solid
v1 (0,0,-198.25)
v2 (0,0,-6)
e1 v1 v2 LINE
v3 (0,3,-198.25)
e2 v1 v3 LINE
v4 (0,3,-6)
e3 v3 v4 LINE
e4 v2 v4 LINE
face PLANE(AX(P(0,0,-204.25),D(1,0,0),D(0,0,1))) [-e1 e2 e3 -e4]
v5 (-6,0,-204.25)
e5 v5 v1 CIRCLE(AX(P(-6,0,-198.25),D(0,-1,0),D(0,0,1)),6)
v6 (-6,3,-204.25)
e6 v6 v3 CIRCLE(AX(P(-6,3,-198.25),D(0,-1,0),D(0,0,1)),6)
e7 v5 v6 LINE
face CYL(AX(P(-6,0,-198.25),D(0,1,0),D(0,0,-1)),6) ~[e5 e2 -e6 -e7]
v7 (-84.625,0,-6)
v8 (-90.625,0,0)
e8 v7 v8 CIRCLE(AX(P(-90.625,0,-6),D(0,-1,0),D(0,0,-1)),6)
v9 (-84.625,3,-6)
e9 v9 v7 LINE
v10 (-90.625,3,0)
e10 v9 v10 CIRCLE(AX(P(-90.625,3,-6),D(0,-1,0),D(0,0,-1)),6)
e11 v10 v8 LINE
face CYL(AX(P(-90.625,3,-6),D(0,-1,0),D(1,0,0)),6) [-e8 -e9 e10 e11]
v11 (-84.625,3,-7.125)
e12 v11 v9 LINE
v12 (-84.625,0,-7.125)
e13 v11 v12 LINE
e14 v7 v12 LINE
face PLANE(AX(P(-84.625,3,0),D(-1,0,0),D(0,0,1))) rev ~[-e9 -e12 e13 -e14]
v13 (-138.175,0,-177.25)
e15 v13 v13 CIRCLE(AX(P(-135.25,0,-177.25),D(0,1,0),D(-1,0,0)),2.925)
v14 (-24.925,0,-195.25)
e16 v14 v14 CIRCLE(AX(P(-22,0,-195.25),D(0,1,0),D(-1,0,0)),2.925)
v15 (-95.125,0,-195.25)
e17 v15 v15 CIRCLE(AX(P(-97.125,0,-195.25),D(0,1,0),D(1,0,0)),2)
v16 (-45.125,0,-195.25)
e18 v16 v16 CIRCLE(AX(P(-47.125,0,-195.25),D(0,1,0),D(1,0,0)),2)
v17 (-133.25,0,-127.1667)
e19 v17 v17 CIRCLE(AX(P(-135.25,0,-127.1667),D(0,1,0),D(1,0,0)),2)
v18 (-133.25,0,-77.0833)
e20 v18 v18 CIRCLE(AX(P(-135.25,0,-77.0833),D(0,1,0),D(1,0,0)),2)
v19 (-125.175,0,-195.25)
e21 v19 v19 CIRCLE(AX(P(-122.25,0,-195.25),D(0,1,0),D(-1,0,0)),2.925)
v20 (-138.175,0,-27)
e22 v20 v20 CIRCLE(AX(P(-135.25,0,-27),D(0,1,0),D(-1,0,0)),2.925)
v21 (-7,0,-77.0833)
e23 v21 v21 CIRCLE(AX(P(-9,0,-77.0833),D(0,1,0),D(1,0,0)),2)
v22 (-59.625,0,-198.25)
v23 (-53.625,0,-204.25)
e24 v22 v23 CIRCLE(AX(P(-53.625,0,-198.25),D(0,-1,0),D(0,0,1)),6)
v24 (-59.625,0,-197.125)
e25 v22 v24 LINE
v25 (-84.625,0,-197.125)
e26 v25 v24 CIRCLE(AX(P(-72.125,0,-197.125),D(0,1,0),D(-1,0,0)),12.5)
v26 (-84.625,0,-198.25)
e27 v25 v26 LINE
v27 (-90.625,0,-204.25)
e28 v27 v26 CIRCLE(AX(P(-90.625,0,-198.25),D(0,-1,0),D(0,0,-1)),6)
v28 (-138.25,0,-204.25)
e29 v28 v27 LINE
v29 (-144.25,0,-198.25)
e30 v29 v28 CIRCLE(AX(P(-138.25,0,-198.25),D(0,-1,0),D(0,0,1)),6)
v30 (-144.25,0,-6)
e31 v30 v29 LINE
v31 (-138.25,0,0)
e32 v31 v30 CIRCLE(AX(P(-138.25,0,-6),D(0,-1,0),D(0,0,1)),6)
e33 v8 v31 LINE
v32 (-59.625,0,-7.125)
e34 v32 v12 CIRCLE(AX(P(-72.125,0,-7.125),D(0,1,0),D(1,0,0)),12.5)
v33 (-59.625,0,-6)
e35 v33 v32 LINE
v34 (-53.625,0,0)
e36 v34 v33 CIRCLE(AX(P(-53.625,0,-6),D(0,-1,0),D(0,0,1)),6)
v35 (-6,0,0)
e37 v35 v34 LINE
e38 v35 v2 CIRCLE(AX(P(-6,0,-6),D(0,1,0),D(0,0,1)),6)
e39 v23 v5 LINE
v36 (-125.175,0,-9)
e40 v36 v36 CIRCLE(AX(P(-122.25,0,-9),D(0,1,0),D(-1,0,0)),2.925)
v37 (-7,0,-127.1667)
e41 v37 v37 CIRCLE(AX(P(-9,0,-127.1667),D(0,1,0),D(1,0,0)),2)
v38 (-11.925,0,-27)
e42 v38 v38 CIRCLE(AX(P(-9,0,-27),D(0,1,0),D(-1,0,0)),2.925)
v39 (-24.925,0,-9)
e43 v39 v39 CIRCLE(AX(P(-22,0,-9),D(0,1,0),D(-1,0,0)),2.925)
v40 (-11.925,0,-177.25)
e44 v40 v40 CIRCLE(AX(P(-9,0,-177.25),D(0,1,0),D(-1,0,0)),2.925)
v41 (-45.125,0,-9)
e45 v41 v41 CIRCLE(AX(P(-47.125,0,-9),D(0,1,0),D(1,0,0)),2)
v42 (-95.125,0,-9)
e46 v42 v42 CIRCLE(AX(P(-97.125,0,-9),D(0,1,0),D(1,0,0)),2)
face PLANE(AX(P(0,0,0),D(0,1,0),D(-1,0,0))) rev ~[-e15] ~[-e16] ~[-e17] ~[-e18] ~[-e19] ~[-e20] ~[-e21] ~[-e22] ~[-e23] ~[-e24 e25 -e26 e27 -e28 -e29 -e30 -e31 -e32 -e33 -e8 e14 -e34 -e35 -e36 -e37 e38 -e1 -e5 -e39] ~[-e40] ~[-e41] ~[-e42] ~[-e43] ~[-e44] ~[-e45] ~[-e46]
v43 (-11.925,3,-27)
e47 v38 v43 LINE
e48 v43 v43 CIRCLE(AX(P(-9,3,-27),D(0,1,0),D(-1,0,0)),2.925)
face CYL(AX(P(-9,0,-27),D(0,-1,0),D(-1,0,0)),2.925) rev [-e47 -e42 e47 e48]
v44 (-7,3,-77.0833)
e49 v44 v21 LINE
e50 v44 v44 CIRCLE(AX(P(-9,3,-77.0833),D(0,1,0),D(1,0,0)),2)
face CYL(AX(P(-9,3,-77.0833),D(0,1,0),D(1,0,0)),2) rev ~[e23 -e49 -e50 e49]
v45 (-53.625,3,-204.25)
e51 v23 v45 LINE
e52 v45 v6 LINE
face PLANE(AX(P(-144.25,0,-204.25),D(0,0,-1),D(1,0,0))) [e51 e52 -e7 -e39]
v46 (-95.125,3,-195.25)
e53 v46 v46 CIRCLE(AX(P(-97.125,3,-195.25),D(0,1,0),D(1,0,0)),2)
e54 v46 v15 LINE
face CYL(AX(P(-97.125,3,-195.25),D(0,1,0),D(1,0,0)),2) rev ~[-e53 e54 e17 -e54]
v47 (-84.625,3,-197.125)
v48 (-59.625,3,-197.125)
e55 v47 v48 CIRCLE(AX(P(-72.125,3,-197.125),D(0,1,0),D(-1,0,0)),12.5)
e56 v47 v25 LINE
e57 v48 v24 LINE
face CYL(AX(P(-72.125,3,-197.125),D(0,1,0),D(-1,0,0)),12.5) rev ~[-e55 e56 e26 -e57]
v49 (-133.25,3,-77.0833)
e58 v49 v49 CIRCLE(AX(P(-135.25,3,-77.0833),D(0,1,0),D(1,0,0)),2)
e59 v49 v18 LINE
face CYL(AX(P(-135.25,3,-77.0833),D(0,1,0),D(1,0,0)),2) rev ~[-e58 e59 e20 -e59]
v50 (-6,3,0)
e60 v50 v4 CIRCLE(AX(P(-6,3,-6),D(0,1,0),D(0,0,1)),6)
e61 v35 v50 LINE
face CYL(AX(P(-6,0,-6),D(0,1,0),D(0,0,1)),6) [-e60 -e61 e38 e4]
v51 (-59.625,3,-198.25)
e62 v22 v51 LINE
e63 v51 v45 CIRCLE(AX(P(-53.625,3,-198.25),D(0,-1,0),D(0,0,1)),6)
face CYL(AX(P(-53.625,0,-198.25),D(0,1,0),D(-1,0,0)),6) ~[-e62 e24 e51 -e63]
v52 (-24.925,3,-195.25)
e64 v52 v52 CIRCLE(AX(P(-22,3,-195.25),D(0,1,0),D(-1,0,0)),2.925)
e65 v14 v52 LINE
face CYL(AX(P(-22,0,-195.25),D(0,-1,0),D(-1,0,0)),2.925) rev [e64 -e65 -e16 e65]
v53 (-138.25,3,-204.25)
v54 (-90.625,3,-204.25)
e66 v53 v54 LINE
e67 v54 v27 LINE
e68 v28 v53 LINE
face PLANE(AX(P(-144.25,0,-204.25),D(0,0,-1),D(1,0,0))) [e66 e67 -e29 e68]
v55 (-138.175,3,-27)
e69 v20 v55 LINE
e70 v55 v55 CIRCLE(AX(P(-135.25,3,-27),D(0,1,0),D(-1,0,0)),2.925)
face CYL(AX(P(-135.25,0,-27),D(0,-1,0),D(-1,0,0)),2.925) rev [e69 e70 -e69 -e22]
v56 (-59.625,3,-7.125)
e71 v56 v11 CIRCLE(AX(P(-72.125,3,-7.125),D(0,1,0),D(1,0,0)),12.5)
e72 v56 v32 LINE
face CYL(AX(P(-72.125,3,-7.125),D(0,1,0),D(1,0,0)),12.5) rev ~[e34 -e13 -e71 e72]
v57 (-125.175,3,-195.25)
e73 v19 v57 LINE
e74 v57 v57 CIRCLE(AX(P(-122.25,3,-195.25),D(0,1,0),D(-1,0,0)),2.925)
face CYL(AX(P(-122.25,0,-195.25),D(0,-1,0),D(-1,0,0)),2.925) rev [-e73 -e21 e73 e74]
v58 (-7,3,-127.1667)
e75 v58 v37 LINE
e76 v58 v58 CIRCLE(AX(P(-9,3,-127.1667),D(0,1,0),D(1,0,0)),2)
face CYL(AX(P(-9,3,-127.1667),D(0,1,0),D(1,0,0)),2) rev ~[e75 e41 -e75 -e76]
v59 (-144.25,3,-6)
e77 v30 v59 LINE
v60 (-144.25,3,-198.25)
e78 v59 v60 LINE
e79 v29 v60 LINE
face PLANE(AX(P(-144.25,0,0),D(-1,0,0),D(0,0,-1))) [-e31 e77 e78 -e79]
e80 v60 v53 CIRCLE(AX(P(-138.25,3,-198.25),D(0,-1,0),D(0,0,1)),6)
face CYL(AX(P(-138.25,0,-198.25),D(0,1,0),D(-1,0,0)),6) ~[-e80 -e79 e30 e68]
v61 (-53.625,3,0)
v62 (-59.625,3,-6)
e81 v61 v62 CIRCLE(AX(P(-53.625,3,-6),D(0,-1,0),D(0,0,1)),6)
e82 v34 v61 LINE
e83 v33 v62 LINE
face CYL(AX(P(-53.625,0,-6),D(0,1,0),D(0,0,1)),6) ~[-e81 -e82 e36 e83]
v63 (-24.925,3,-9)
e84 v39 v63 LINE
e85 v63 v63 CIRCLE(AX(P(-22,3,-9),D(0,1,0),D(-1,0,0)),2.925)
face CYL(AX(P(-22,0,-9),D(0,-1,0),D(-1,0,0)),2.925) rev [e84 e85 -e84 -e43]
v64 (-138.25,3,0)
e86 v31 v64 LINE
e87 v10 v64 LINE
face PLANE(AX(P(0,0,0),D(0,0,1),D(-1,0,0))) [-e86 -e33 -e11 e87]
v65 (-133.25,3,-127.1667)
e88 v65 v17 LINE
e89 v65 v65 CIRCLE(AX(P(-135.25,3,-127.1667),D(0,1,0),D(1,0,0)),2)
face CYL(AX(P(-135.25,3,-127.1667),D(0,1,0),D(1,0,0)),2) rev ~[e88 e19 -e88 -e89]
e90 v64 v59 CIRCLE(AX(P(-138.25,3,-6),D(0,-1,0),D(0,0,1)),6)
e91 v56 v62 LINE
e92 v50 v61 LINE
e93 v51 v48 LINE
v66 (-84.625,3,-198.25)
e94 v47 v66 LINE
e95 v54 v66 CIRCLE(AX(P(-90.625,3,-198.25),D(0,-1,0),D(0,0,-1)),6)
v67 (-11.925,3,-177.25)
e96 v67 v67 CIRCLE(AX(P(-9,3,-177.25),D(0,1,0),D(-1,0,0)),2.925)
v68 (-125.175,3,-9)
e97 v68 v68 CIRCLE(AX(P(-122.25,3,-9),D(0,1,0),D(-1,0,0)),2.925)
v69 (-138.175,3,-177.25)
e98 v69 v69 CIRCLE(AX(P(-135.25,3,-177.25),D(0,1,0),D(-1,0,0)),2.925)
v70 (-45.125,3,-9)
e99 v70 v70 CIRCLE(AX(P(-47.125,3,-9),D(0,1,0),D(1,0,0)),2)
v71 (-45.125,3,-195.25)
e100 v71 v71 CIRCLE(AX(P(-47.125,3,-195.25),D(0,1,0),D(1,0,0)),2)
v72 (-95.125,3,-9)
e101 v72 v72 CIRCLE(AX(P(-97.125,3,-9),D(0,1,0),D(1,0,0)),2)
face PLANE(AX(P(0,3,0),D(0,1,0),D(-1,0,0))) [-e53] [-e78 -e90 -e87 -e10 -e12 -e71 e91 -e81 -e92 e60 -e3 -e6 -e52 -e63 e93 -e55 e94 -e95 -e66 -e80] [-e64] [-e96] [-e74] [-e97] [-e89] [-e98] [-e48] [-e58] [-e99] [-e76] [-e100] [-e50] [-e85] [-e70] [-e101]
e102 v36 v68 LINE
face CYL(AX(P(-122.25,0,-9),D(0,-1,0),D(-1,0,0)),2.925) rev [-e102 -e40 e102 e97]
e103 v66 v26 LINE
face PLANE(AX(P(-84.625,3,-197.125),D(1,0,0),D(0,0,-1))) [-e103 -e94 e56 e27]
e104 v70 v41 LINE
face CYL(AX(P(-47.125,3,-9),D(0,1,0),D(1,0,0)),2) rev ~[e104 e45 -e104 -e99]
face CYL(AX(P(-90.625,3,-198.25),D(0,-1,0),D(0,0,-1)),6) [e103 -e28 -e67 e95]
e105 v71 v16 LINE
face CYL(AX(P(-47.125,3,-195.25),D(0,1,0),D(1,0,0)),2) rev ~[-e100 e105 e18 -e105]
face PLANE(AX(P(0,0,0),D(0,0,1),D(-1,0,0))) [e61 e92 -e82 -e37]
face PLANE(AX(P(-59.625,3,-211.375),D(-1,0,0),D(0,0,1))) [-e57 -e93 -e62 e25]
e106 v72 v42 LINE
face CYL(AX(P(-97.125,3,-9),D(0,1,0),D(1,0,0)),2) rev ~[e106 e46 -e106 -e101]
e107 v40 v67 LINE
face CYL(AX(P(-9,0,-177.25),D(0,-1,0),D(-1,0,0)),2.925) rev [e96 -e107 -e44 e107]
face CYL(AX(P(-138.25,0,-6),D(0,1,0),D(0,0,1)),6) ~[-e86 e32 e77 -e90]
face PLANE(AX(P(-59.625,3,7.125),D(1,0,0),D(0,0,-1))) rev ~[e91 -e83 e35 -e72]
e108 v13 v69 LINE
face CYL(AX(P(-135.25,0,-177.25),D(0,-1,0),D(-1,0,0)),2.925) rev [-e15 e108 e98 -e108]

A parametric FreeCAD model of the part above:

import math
import FreeCAD as App
import Part
import Sketcher

V = App.Vector
Q = App.Units.Quantity


def edges_at(feature, points):
    """Names of the edges that pass closest to the given points."""
    edges = feature.Shape.Edges
    near = lambda p: min(range(len(edges)), key=lambda i: edges[i].distToShape(Part.Vertex(*p))[0])
    return sorted({f"Edge{near(p) + 1}" for p in points})


def add_polygon(sketch, points):
    """Adds a closed chain of lines whose ends are joined by coincident constraints."""
    first, n = sketch.GeometryCount, len(points)
    for a, b in zip(points, points[1:] + points[:1]):
        sketch.addGeometry(Part.LineSegment(App.Vector(*a, 0), App.Vector(*b, 0)), False)
    for i in range(n):
        sketch.addConstraint(Sketcher.Constraint("Coincident", first + i, 2, first + (i + 1) % n, 1))

doc = App.newDocument("Part")
body = doc.addObject("PartDesign::Body", "Body")

# Sketch on XZ plane
sketch1 = body.newObject("Sketcher::SketchObject", "Sketch")
sketch1.AttachmentSupport = (doc.getObject("XZ_Plane"), [""])
sketch1.MapMode = "FlatFace"
add_polygon(sketch1, [(-144.2, 0), (0, 0), (0, -204.2), (-144.2, -204.2)])  # lines 0-3
sketch1.addGeometry(Part.Circle(V(-22, -195.2, 0), V(0, 0, 1), 2.9), False)  # 4
sketch1.addGeometry(Part.Circle(V(-9, -177.2, 0), V(0, 0, 1), 2.9), False)  # 5
sketch1.addGeometry(Part.Circle(V(-122.2, -195.2, 0), V(0, 0, 1), 2.9), False)  # 6
sketch1.addGeometry(Part.Circle(V(-135.2, -177.2, 0), V(0, 0, 1), 2.9), False)  # 7
sketch1.addGeometry(Part.Circle(V(-9, -27, 0), V(0, 0, 1), 2.9), False)  # 8
sketch1.addGeometry(Part.Circle(V(-22, -9, 0), V(0, 0, 1), 2.9), False)  # 9
sketch1.addGeometry(Part.Circle(V(-135.2, -27, 0), V(0, 0, 1), 2.9), False)  # 10
sketch1.addGeometry(Part.Circle(V(-122.2, -9, 0), V(0, 0, 1), 2.9), False)  # 11
sketch1.addConstraint(Sketcher.Constraint("Horizontal", 0))
sketch1.addConstraint(Sketcher.Constraint("Vertical", 1))
sketch1.addConstraint(Sketcher.Constraint("Horizontal", 2))
sketch1.addConstraint(Sketcher.Constraint("Vertical", 3))
sketch1.addConstraint(Sketcher.Constraint("Coincident", 0, 2, -1, 1))
sketch1.addConstraint(Sketcher.Constraint("Equal", 4, 5))
sketch1.addConstraint(Sketcher.Constraint("Equal", 5, 6))
sketch1.addConstraint(Sketcher.Constraint("Equal", 6, 7))
sketch1.addConstraint(Sketcher.Constraint("Equal", 7, 8))
sketch1.addConstraint(Sketcher.Constraint("Equal", 8, 9))
sketch1.addConstraint(Sketcher.Constraint("Equal", 9, 10))
sketch1.addConstraint(Sketcher.Constraint("Equal", 10, 11))
sketch1.addConstraint(Sketcher.Constraint("Horizontal", 4, 3, 6, 3))
sketch1.addConstraint(Sketcher.Constraint("Horizontal", 5, 3, 7, 3))
sketch1.addConstraint(Sketcher.Constraint("Horizontal", 8, 3, 10, 3))
sketch1.addConstraint(Sketcher.Constraint("Horizontal", 9, 3, 11, 3))
sketch1.addConstraint(Sketcher.Constraint("Vertical", 5, 3, 8, 3))
sketch1.addConstraint(Sketcher.Constraint("Vertical", 4, 3, 9, 3))
sketch1.addConstraint(Sketcher.Constraint("Vertical", 7, 3, 10, 3))
sketch1.addConstraint(Sketcher.Constraint("Vertical", 6, 3, 11, 3))
sketch1.addConstraint(Sketcher.Constraint("DistanceX", 0, 1, 0, 2, Q("144.25 mm")))
sketch1.addConstraint(Sketcher.Constraint("DistanceY", 1, 2, 1, 1, Q("204.25 mm")))
sketch1.addConstraint(Sketcher.Constraint("Diameter", 4, Q("5.85 mm")))
sketch1.addConstraint(Sketcher.Constraint("DistanceX", 4, 3, -1, 1, Q("22 mm")))
sketch1.addConstraint(Sketcher.Constraint("DistanceX", 5, 3, -1, 1, Q("9 mm")))
sketch1.addConstraint(Sketcher.Constraint("DistanceY", 8, 3, -1, 1, Q("27 mm")))
sketch1.addConstraint(Sketcher.Constraint("DistanceY", 9, 3, -1, 1, Q("9 mm")))
sketch1.addConstraint(Sketcher.Constraint("DistanceY", 4, 3, 5, 3, Q("18 mm")))
sketch1.addConstraint(Sketcher.Constraint("DistanceX", 7, 3, 6, 3, Q("13 mm")))
sketch1.addConstraint(Sketcher.Constraint("DistanceY", 1, 2, 4, 3, Q("9 mm")))
sketch1.addConstraint(Sketcher.Constraint("DistanceX", 2, 2, 6, 3, Q("22 mm")))
pad1 = body.newObject("PartDesign::Pad", "Pad")
pad1.Profile = sketch1
pad1.Length = 3
pad1.Reversed = True
doc.recompute()

fillet = body.newObject("PartDesign::Fillet", "Fillet")
fillet.Base = (pad1, edges_at(pad1, [
    (0, 1.5, 0),
    (-144.25, 1.5, 0),
    (0, 1.5, -204.25),
    (-144.25, 1.5, -204.25),
]))
fillet.Radius = 6

# Sketch on XZ plane
sketch2 = body.newObject("Sketcher::SketchObject", "Sketch001")
sketch2.AttachmentSupport = (doc.getObject("XZ_Plane"), [""])
sketch2.MapMode = "FlatFace"
sketch2.AttachmentOffset = App.Placement(V(0, 0, -3), App.Rotation())
sketch2.addGeometry(Part.LineSegment(V(-60, 7, 0), V(-60, -7, 0)), False)
sketch2.addGeometry(Part.ArcOfCircle(Part.Circle(V(-72, -7, 0), V(0, 0, 1), 12), math.radians(180), math.radians(360)), False)
sketch2.addGeometry(Part.LineSegment(V(-85, -7, 0), V(-85, 7, 0)), False)
sketch2.addGeometry(Part.ArcOfCircle(Part.Circle(V(-72, 7, 0), V(0, 0, 1), 12), math.radians(0), math.radians(180)), False)
sketch2.addGeometry(Part.LineSegment(V(-60, -197, 0), V(-60, -211, 0)), False)
sketch2.addGeometry(Part.ArcOfCircle(Part.Circle(V(-72, -211, 0), V(0, 0, 1), 12), math.radians(180), math.radians(360)), False)
sketch2.addGeometry(Part.LineSegment(V(-85, -211, 0), V(-85, -197, 0)), False)
sketch2.addGeometry(Part.ArcOfCircle(Part.Circle(V(-72, -197, 0), V(0, 0, 1), 12), math.radians(0), math.radians(180)), False)
sketch2.addConstraint(Sketcher.Constraint("Tangent", 0, 2, 1, 2))
sketch2.addConstraint(Sketcher.Constraint("Tangent", 1, 1, 2, 1))
sketch2.addConstraint(Sketcher.Constraint("Tangent", 2, 2, 3, 2))
sketch2.addConstraint(Sketcher.Constraint("Tangent", 3, 1, 0, 1))
sketch2.addConstraint(Sketcher.Constraint("Tangent", 4, 2, 5, 2))
sketch2.addConstraint(Sketcher.Constraint("Tangent", 5, 1, 6, 1))
sketch2.addConstraint(Sketcher.Constraint("Tangent", 6, 2, 7, 2))
sketch2.addConstraint(Sketcher.Constraint("Tangent", 7, 1, 4, 1))
sketch2.addConstraint(Sketcher.Constraint("Vertical", 0))
sketch2.addConstraint(Sketcher.Constraint("Vertical", 2))
sketch2.addConstraint(Sketcher.Constraint("Vertical", 4))
sketch2.addConstraint(Sketcher.Constraint("Vertical", 6))
sketch2.addConstraint(Sketcher.Constraint("Equal", 3, 5))
sketch2.addConstraint(Sketcher.Constraint("Vertical", 3, 3, 5, 3))
sketch2.addConstraint(Sketcher.Constraint("Equal", 2, 4))
sketch2.addConstraint(Sketcher.Constraint("Radius", 1, Q("12.5 mm")))
sketch2.addConstraint(Sketcher.Constraint("DistanceY", 7, 3, 1, 3, Q("190 mm")))
sketch2.addConstraint(Sketcher.Constraint("DistanceY", 0, 2, 0, 1, Q("14.25 mm")))
sketch2.addConstraint(Sketcher.Constraint("DistanceX", 1, 3, -1, 1, Q("72.125 mm")))
sketch2.addConstraint(Sketcher.Constraint("DistanceY", 1, 3, -1, 1, Q("7.125 mm")))
pocket1 = body.newObject("PartDesign::Pocket", "Pocket")
pocket1.Profile = sketch2
pocket1.Length = 3
pocket1.Reversed = True
doc.recompute()

fillet2 = body.newObject("PartDesign::Fillet", "Fillet001")
fillet2.Base = (pocket1, edges_at(pocket1, [
    (-84.625, 1.5, 0),
    (-59.625, 1.5, 0),
    (-84.625, 1.5, -204.25),
    (-59.625, 1.5, -204.25),
]))
fillet2.Radius = 6

# Sketch on XZ plane
sketch3 = body.newObject("Sketcher::SketchObject", "Sketch002")
sketch3.AttachmentSupport = (doc.getObject("XZ_Plane"), [""])
sketch3.MapMode = "FlatFace"
sketch3.AttachmentOffset = App.Placement(V(0, 0, -3), App.Rotation())
sketch3.addGeometry(Part.Circle(V(-135.2, -77.1, 0), V(0, 0, 1), 2), False)
sketch3.addGeometry(Part.Circle(V(-135.2, -127.2, 0), V(0, 0, 1), 2), False)
sketch3.addGeometry(Part.Circle(V(-9, -77.1, 0), V(0, 0, 1), 2), False)
sketch3.addGeometry(Part.Circle(V(-9, -127.2, 0), V(0, 0, 1), 2), False)
sketch3.addGeometry(Part.Circle(V(-97.1, -9, 0), V(0, 0, 1), 2), False)
sketch3.addGeometry(Part.Circle(V(-47.1, -9, 0), V(0, 0, 1), 2), False)
sketch3.addGeometry(Part.Circle(V(-47.1, -195.2, 0), V(0, 0, 1), 2), False)
sketch3.addGeometry(Part.Circle(V(-97.1, -195.2, 0), V(0, 0, 1), 2), False)
sketch3.addConstraint(Sketcher.Constraint("Equal", 0, 1))
sketch3.addConstraint(Sketcher.Constraint("Equal", 1, 2))
sketch3.addConstraint(Sketcher.Constraint("Equal", 2, 3))
sketch3.addConstraint(Sketcher.Constraint("Equal", 3, 4))
sketch3.addConstraint(Sketcher.Constraint("Equal", 4, 5))
sketch3.addConstraint(Sketcher.Constraint("Equal", 5, 6))
sketch3.addConstraint(Sketcher.Constraint("Equal", 6, 7))
sketch3.addConstraint(Sketcher.Constraint("Horizontal", 0, 3, 2, 3))
sketch3.addConstraint(Sketcher.Constraint("Horizontal", 1, 3, 3, 3))
sketch3.addConstraint(Sketcher.Constraint("Horizontal", 4, 3, 5, 3))
sketch3.addConstraint(Sketcher.Constraint("Horizontal", 6, 3, 7, 3))
sketch3.addConstraint(Sketcher.Constraint("Vertical", 0, 3, 1, 3))
sketch3.addConstraint(Sketcher.Constraint("Vertical", 2, 3, 3, 3))
sketch3.addConstraint(Sketcher.Constraint("Vertical", 5, 3, 6, 3))
sketch3.addConstraint(Sketcher.Constraint("Vertical", 4, 3, 7, 3))
sketch3.addConstraint(Sketcher.Constraint("Diameter", 0, Q("4 mm")))
sketch3.addConstraint(Sketcher.Constraint("DistanceX", 4, 3, 5, 3, Q("50 mm")))
sketch3.addConstraint(Sketcher.Constraint("DistanceX", 2, 3, -1, 1, Q("9 mm")))
sketch3.addConstraint(Sketcher.Constraint("DistanceY", 4, 3, -1, 1, Q("9 mm")))
sketch3.addConstraint(Sketcher.Constraint("DistanceY", 1, 3, 0, 3, Q("50.0834 mm")))
sketch3.addConstraint(Sketcher.Constraint("DistanceX", 0, 3, -1, 1, Q("135.25 mm")))
sketch3.addConstraint(Sketcher.Constraint("DistanceY", 6, 3, -1, 1, Q("195.25 mm")))
sketch3.addConstraint(Sketcher.Constraint("DistanceX", 4, 3, -1, 1, Q("97.125 mm")))
sketch3.addConstraint(Sketcher.Constraint("DistanceY", 0, 3, -1, 1, Q("77.0833 mm")))
pocket2 = body.newObject("PartDesign::Pocket", "Pocket001")
pocket2.Profile = sketch3
pocket2.Length = 3
pocket2.Reversed = True

doc.recompute()
